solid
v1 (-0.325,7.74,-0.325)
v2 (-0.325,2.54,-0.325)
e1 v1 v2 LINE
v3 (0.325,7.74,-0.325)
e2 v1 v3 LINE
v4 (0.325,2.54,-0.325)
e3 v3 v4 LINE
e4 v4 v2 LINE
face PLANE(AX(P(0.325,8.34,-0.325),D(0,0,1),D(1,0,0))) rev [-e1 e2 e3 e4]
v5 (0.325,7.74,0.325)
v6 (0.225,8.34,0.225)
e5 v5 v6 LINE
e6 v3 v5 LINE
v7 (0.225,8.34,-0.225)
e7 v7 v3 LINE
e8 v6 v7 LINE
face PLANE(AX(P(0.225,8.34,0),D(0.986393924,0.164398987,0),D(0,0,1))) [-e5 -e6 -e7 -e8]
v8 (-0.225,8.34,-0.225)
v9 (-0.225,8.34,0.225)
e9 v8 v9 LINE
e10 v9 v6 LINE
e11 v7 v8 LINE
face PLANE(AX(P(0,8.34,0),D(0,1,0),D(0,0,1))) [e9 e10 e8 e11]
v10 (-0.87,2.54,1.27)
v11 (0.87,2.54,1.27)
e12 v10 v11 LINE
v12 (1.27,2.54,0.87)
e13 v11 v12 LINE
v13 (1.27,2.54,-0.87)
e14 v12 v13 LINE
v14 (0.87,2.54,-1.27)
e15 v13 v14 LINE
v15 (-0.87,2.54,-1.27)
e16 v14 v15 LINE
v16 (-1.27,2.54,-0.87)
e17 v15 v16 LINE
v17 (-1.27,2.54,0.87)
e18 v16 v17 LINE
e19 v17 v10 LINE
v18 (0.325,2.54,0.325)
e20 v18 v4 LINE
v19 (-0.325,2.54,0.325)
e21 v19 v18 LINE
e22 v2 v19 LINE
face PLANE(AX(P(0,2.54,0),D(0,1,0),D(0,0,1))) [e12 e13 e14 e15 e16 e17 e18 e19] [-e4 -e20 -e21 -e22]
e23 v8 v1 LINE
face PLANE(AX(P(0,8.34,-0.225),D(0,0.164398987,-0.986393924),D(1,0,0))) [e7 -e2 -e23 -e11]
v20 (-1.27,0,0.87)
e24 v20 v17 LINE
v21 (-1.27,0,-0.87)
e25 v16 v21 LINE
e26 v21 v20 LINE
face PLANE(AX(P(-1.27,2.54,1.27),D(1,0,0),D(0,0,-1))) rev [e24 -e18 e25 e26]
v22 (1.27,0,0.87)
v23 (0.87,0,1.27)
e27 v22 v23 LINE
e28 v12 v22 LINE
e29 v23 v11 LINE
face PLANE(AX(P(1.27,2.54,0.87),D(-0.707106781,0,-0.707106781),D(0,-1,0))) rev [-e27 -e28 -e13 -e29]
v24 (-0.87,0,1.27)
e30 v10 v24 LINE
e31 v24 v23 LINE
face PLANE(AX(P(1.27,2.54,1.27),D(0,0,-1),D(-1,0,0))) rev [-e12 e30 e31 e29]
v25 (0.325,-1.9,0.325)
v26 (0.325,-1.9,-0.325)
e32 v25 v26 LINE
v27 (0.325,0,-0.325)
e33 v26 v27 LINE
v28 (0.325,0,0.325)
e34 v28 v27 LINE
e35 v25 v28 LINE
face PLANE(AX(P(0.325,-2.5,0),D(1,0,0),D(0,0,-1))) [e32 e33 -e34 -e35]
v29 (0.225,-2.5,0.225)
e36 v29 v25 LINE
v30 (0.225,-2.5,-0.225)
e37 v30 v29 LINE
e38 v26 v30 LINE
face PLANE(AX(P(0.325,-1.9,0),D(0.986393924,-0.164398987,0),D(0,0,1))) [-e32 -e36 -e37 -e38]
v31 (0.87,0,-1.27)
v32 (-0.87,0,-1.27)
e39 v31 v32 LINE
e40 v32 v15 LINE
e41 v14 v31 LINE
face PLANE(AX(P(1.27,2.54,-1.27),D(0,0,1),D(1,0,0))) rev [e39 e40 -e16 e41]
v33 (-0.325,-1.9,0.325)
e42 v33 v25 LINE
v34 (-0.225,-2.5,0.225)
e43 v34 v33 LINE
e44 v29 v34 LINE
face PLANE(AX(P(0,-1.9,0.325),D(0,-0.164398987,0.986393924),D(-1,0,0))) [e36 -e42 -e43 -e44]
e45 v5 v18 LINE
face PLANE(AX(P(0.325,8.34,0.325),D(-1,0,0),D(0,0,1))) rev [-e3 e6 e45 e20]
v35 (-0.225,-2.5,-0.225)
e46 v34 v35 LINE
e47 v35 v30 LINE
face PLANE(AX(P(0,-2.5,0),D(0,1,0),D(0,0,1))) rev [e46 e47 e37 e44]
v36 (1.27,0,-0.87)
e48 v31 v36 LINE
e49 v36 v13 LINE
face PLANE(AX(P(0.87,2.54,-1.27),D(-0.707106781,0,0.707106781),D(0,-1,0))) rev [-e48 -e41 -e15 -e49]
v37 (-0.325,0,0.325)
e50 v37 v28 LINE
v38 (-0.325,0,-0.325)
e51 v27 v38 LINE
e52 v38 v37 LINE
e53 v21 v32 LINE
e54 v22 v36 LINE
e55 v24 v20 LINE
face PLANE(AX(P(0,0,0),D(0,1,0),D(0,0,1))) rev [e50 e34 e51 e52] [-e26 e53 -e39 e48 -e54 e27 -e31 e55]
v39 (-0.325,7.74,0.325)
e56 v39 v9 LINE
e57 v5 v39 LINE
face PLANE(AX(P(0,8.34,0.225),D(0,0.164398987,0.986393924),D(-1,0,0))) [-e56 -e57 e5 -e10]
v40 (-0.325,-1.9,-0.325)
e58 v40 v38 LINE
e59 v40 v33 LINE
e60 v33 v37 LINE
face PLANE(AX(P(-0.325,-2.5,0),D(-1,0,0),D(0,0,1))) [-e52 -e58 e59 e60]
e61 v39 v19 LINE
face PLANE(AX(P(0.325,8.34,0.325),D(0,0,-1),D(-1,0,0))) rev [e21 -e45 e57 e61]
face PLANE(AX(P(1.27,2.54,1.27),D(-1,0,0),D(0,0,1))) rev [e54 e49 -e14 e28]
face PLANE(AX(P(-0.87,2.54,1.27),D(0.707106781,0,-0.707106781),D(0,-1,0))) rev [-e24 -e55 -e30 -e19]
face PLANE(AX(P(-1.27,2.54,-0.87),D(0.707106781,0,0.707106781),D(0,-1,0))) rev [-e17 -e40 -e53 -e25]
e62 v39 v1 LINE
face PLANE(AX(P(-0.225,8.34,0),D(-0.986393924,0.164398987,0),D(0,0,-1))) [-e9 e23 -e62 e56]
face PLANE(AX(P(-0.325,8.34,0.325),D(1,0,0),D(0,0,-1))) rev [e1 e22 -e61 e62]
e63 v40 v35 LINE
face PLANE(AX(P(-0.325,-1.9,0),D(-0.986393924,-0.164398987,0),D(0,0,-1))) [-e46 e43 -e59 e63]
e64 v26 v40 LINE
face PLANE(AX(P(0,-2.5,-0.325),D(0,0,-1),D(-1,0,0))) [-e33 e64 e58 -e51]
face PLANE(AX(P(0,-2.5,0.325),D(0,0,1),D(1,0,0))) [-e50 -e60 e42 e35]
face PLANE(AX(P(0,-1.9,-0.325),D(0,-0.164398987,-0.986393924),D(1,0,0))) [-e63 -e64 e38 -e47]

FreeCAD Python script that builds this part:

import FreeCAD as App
import Part
import Sketcher
from FreeCAD import Vector


def edges_at(feature, points):
    """Names of the edges that pass closest to the given points."""
    edges = feature.Shape.Edges
    near = lambda p: min(range(len(edges)), key=lambda i: edges[i].distToShape(Part.Vertex(*p))[0])
    return sorted({f"Edge{near(p) + 1}" for p in points})


def add_polygon(sketch, points):
    """Adds a closed chain of lines whose ends are joined by coincident constraints."""
    first, n = sketch.GeometryCount, len(points)
    for a, b in zip(points, points[1:] + points[:1]):
        sketch.addGeometry(Part.LineSegment(App.Vector(*a, 0), App.Vector(*b, 0)), False)
    for i in range(n):
        sketch.addConstraint(Sketcher.Constraint("Coincident", first + i, 2, first + (i + 1) % n, 1))

doc = App.newDocument("Part")
body = doc.addObject("PartDesign::Body", "Body")

sketch1 = body.newObject("Sketcher::SketchObject", "Sketch")
sketch1.AttachmentSupport = (doc.getObject("XZ_Plane"), [""])
sketch1.MapMode = "FlatFace"
add_polygon(sketch1, [(-1.27, -1.27), (-1.27, 1.27), (1.27, 1.27), (1.27, -1.27)])
sketch1.addConstraint(Sketcher.Constraint("Vertical", 0))
sketch1.addConstraint(Sketcher.Constraint("Horizontal", 1))
sketch1.addConstraint(Sketcher.Constraint("Vertical", 2))
sketch1.addConstraint(Sketcher.Constraint("Horizontal", 3))
sketch1.addConstraint(Sketcher.Constraint("Symmetric", 0, 2, 2, 2, -1, 1))
sketch1.addConstraint(Sketcher.Constraint("Equal", 3, 0))
sketch1.addConstraint(Sketcher.Constraint("DistanceX", 1, 1, 1, 2, 2.54))
pad1 = body.newObject("PartDesign::Pad", "Pad")
pad1.Profile = sketch1
pad1.Length = 2.54
pad1.Reversed = True
doc.recompute()

chamfer = body.newObject("PartDesign::Chamfer", "Chamfer")
chamfer.Base = (pad1, edges_at(pad1, [
    (-1.27, 1.27, -1.27),
    (1.27, 1.27, -1.27),
    (1.27, 1.27, 1.27),
    (-1.27, 1.27, 1.27),
]))
chamfer.Size = 0.4

sketch2 = body.newObject("Sketcher::SketchObject", "Sketch001")
sketch2.AttachmentSupport = (doc.getObject("XZ_Plane"), [""])
sketch2.MapMode = "FlatFace"
sketch2.AttachmentOffset = App.Placement(Vector(0, 0, -2.54), App.Rotation())
add_polygon(sketch2, [(-0.325, -0.325), (-0.325, 0.325), (0.325, 0.325), (0.325, -0.325)])
sketch2.addConstraint(Sketcher.Constraint("Vertical", 0))
sketch2.addConstraint(Sketcher.Constraint("Horizontal", 1))
sketch2.addConstraint(Sketcher.Constraint("Vertical", 2))
sketch2.addConstraint(Sketcher.Constraint("Horizontal", 3))
sketch2.addConstraint(Sketcher.Constraint("Symmetric", 0, 2, 2, 2, -1, 1))
sketch2.addConstraint(Sketcher.Constraint("Equal", 3, 0))
sketch2.addConstraint(Sketcher.Constraint("DistanceX", 1, 1, 1, 2, 0.65))
pad2 = body.newObject("PartDesign::Pad", "Pad001")
pad2.Profile = sketch2
pad2.Length = 5.8
pad2.Reversed = True

sketch3 = body.newObject("Sketcher::SketchObject", "Sketch002")
sketch3.AttachmentSupport = (doc.getObject("XZ_Plane"), [""])
sketch3.MapMode = "FlatFace"
add_polygon(sketch3, [(-0.325, -0.325), (-0.325, 0.325), (0.325, 0.325), (0.325, -0.325)])
sketch3.addConstraint(Sketcher.Constraint("Vertical", 0))
sketch3.addConstraint(Sketcher.Constraint("Horizontal", 1))
sketch3.addConstraint(Sketcher.Constraint("Vertical", 2))
sketch3.addConstraint(Sketcher.Constraint("Horizontal", 3))
sketch3.addConstraint(Sketcher.Constraint("Symmetric", 0, 2, 2, 2, -1, 1))
sketch3.addConstraint(Sketcher.Constraint("Equal", 3, 0))
sketch3.addConstraint(Sketcher.Constraint("DistanceX", 1, 1, 1, 2, 0.65))
pad3 = body.newObject("PartDesign::Pad", "Pad002")
pad3.Profile = sketch3
pad3.Length = 2.5
doc.recompute()

chamfer2 = body.newObject("PartDesign::Chamfer", "Chamfer001")
chamfer2.Base = (pad3, edges_at(pad3, [(-0.325, 8.34, 0)]))
chamfer2.ChamferType = "Two distances"
chamfer2.Size = 0.6
chamfer2.Size2 = 0.1
doc.recompute()

chamfer3 = body.newObject("PartDesign::Chamfer", "Chamfer002")
chamfer3.Base = (chamfer2, edges_at(chamfer2, [(0.05, 8.34, 0.325)]))
chamfer3.ChamferType = "Two distances"
chamfer3.Size = 0.6
chamfer3.Size2 = 0.1
doc.recompute()

chamfer4 = body.newObject("PartDesign::Chamfer", "Chamfer003")
chamfer4.Base = (chamfer3, edges_at(chamfer3, [(0.325, 8.34, -0.05)]))
chamfer4.ChamferType = "Two distances"
chamfer4.Size = 0.6
chamfer4.Size2 = 0.1
chamfer4.FlipDirection = True
doc.recompute()

chamfer5 = body.newObject("PartDesign::Chamfer", "Chamfer004")
chamfer5.Base = (chamfer4, edges_at(chamfer4, [(0, 8.34, -0.325)]))
chamfer5.ChamferType = "Two distances"
chamfer5.Size = 0.6
chamfer5.Size2 = 0.1
chamfer5.FlipDirection = True
doc.recompute()

chamfer6 = body.newObject("PartDesign::Chamfer", "Chamfer005")
chamfer6.Base = (chamfer5, edges_at(chamfer5, [
    (-0.325, -2.5, 0),
    (0, -2.5, -0.325),
    (0.325, -2.5, 0),
    (0, -2.5, 0.325),
]))
chamfer6.ChamferType = "Two distances"
chamfer6.Size = 0.1
chamfer6.Size2 = 0.6
chamfer6.FlipDirection = True

doc.recompute()
